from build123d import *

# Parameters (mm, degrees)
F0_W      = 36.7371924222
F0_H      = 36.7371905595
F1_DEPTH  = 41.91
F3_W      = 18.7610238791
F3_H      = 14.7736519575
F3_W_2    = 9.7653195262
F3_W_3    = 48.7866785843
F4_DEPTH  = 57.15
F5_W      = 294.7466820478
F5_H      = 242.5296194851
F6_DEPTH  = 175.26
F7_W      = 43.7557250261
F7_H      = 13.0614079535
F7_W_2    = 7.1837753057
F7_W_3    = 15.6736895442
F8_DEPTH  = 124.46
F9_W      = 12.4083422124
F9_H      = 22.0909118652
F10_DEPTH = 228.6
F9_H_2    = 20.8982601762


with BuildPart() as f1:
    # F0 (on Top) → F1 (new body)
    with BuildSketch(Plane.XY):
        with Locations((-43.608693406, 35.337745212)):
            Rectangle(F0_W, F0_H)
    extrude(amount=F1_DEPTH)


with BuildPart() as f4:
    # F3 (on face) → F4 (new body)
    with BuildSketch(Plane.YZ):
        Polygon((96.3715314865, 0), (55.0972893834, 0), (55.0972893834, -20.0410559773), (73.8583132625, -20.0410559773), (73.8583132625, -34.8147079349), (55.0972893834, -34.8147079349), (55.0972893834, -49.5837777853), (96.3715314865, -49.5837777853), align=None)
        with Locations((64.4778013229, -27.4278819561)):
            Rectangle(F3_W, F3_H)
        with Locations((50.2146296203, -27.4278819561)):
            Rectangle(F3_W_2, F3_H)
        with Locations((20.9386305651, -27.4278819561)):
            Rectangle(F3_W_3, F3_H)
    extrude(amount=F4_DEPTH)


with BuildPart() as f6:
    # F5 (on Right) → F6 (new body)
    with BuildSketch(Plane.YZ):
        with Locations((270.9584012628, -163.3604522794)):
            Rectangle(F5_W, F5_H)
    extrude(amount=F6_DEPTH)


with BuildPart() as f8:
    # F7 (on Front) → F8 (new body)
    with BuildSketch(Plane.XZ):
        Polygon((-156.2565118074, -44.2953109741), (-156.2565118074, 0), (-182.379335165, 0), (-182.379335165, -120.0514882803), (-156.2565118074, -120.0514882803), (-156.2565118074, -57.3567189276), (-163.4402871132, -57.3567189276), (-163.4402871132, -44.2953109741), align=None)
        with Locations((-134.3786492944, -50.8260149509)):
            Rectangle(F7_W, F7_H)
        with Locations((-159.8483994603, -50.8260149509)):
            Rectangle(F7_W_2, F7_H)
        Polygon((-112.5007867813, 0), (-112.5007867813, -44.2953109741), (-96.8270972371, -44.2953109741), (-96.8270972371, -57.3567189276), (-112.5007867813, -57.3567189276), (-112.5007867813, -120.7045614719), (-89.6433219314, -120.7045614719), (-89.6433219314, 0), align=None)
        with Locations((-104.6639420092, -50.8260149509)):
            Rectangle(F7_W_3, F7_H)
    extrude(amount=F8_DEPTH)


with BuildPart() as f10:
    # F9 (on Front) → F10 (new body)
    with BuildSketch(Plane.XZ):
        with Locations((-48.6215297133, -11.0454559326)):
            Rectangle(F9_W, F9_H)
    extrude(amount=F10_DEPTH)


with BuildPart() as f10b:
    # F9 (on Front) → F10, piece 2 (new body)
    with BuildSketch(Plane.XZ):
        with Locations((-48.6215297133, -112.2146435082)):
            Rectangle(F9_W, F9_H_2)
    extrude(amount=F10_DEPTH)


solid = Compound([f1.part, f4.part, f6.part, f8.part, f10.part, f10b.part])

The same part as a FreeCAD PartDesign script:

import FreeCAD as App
import Part
import Sketcher
from FreeCAD import Vector
Q = App.Units.Quantity


def add_polygon(sketch, points):
    """Adds a closed chain of lines whose ends are joined by coincident constraints."""
    first, n = sketch.GeometryCount, len(points)
    for a, b in zip(points, points[1:] + points[:1]):
        sketch.addGeometry(Part.LineSegment(App.Vector(*a, 0), App.Vector(*b, 0)), False)
    for i in range(n):
        sketch.addConstraint(Sketcher.Constraint("Coincident", first + i, 2, first + (i + 1) % n, 1))

doc = App.newDocument("Part")
params = doc.addObject("Spreadsheet::Sheet", "Params")
for row, (alias, value) in enumerate([
    ("pad1_length", "1.65 in"),
    ("pad2_length", "2.25 in"),
    ("pad3_length", "6.9 in"),
    ("pad4_length", "4.9 in"),
    ("pad5_length", "9 in"),
    ("pad6_length", "9 in"),
], start=1):
    params.set(f"A{row}", alias)
    params.set(f"B{row}", "=" + value)
    params.setAlias(f"B{row}", alias)

body = doc.addObject("PartDesign::Body", "Body")

sketch1 = body.newObject("Sketcher::SketchObject", "Sketch")
sketch1.AttachmentSupport = (doc.getObject("XY_Plane"), [""])
sketch1.MapMode = "FlatFace"
add_polygon(sketch1, [(-62, 54), (-62, 17), (-25, 17), (-25, 54)])
sketch1.addConstraint([
    Sketcher.Constraint("Vertical", 0),
    Sketcher.Constraint("Horizontal", 1),
    Sketcher.Constraint("Vertical", 2),
    Sketcher.Constraint("Horizontal", 3),
    Sketcher.Constraint("Equal", 3, 0),
    Sketcher.Constraint("DistanceY", 0, 2, 0, 1, Q("36.737191 mm")),
    Sketcher.Constraint("DistanceX", 0, 2, -1, 1, Q("61.97729 mm")),
    Sketcher.Constraint("DistanceY", -1, 1, 0, 2, Q("16.96915 mm")),
])
pad1 = body.newObject("PartDesign::Pad", "Pad")
pad1.Profile = sketch1
pad1.setExpression("Length", "Params.pad1_length")
body2 = doc.addObject("PartDesign::Body", "Body001")

sketch2 = body2.newObject("Sketcher::SketchObject", "Sketch001")
sketch2.AttachmentSupport = (doc.getObject("YZ_Plane001"), [""])
sketch2.MapMode = "FlatFace"
add_polygon(sketch2, [(96, 0), (55, 0), (55, -20), (-3, -20), (-3, -35), (55, -35), (55, -50), (96, -50)])
sketch2.addConstraint([
    Sketcher.Constraint("Horizontal", 0),
    Sketcher.Constraint("Vertical", 1),
    Sketcher.Constraint("Horizontal", 2),
    Sketcher.Constraint("Vertical", 3),
    Sketcher.Constraint("Horizontal", 4),
    Sketcher.Constraint("Vertical", 5),
    Sketcher.Constraint("Horizontal", 6),
    Sketcher.Constraint("Vertical", 7),
    Sketcher.Constraint("PointOnObject", 0, 2, -1),
    Sketcher.Constraint("Vertical", 1, 2, 4, 2),
    Sketcher.Constraint("DistanceX", 2, 2, 2, 1, Q("58.551998 mm")),
    Sketcher.Constraint("DistanceY", 3, 2, 3, 1, Q("14.773652 mm")),
    Sketcher.Constraint("DistanceY", 5, 2, 5, 1, Q("14.76907 mm")),
    Sketcher.Constraint("DistanceX", 0, 2, 0, 1, Q("41.274242 mm")),
    Sketcher.Constraint("DistanceY", 1, 2, 1, 1, Q("20.041056 mm")),
    Sketcher.Constraint("DistanceX", -1, 1, 0, 2, Q("55.097289 mm")),
])
pad2 = body2.newObject("PartDesign::Pad", "Pad001")
pad2.Profile = sketch2
pad2.setExpression("Length", "Params.pad2_length")
body3 = doc.addObject("PartDesign::Body", "Body002")

sketch3 = body3.newObject("Sketcher::SketchObject", "Sketch002")
sketch3.AttachmentSupport = (doc.getObject("YZ_Plane002"), [""])
sketch3.MapMode = "FlatFace"
add_polygon(sketch3, [(124, -42), (124, -285), (418, -285), (418, -42)])
sketch3.addConstraint([
    Sketcher.Constraint("Vertical", 0),
    Sketcher.Constraint("Horizontal", 1),
    Sketcher.Constraint("Vertical", 2),
    Sketcher.Constraint("Horizontal", 3),
    Sketcher.Constraint("DistanceX", 1, 1, 1, 2, Q("11.6042001 in")),
    Sketcher.Constraint("DistanceY", 0, 2, 0, 1, Q("242.529619 mm")),
    Sketcher.Constraint("DistanceX", -1, 1, 0, 2, Q("123.58506 mm")),
    Sketcher.Constraint("DistanceY", 0, 2, -1, 1, Q("284.625262 mm")),
])
pad3 = body3.newObject("PartDesign::Pad", "Pad002")
pad3.Profile = sketch3
pad3.setExpression("Length", "Params.pad3_length")
body4 = doc.addObject("PartDesign::Body", "Body003")

sketch4 = body4.newObject("Sketcher::SketchObject", "Sketch003")
sketch4.AttachmentSupport = (doc.getObject("XZ_Plane003"), [""])
sketch4.MapMode = "FlatFace"
add_polygon(sketch4, [(-156, -120), (-156, -57), (-113, -57), (-113, -121), (-90, -121), (-90, 0), (-113, 0), (-113, -44), (-156, -44), (-156, 0), (-182, 0), (-182, -120)])
sketch4.addConstraint([
    Sketcher.Constraint("Vertical", 0),
    Sketcher.Constraint("Horizontal", 1),
    Sketcher.Constraint("Vertical", 2),
    Sketcher.Constraint("Horizontal", 3),
    Sketcher.Constraint("Vertical", 4),
    Sketcher.Constraint("Horizontal", 5),
    Sketcher.Constraint("Vertical", 6),
    Sketcher.Constraint("Horizontal", 7),
    Sketcher.Constraint("Vertical", 8),
    Sketcher.Constraint("Horizontal", 9),
    Sketcher.Constraint("Vertical", 10),
    Sketcher.Constraint("Horizontal", 11),
    Sketcher.Constraint("PointOnObject", 4, 2, -1),
    Sketcher.Constraint("PointOnObject", 8, 2, -1),
    Sketcher.Constraint("Vertical", 2, 2, 5, 2),
    Sketcher.Constraint("Vertical", 0, 2, 7, 2),
    Sketcher.Constraint("DistanceX", 3, 1, 3, 2, Q("0.8999002 in")),
    Sketcher.Constraint("DistanceY", 0, 1, 0, 2, Q("62.694769 mm")),
    Sketcher.Constraint("DistanceY", 4, 1, 4, 2, Q("120.704561 mm")),
    Sketcher.Constraint("DistanceY", 6, 2, 6, 1, Q("44.295311 mm")),
    Sketcher.Constraint("DistanceY", 10, 2, 10, 1, Q("120.051488 mm")),
    Sketcher.Constraint("DistanceX", 1, 1, 1, 2, Q("43.755725 mm")),
    Sketcher.Constraint("DistanceX", 9, 2, 9, 1, Q("26.122823 mm")),
    Sketcher.Constraint("DistanceX", 0, 2, -1, 1, Q("156.256512 mm")),
])
pad4 = body4.newObject("PartDesign::Pad", "Pad003")
pad4.Profile = sketch4
pad4.setExpression("Length", "Params.pad4_length")
body5 = doc.addObject("PartDesign::Body", "Body004")

sketch5 = body5.newObject("Sketcher::SketchObject", "Sketch004")
sketch5.AttachmentSupport = (doc.getObject("XZ_Plane004"), [""])
sketch5.MapMode = "FlatFace"
add_polygon(sketch5, [(-55, 0), (-55, -22), (-42, -22), (-42, 0)])
sketch5.addConstraint([
    Sketcher.Constraint("Vertical", 0),
    Sketcher.Constraint("Horizontal", 1),
    Sketcher.Constraint("Vertical", 2),
    Sketcher.Constraint("Horizontal", 3),
    Sketcher.Constraint("PointOnObject", 2, 2, -1),
    Sketcher.Constraint("DistanceY", 0, 2, 0, 1, Q("22.090912 mm")),
    Sketcher.Constraint("DistanceX", 0, 2, -1, 1, Q("54.825701 mm")),
    Sketcher.Constraint("DistanceX", 1, 1, 1, 2, Q("12.408342 mm")),
])
pad5 = body5.newObject("PartDesign::Pad", "Pad004")
pad5.Profile = sketch5
pad5.setExpression("Length", "Params.pad5_length")
body6 = doc.addObject("PartDesign::Body", "Body005")

sketch6 = body6.newObject("Sketcher::SketchObject", "Sketch005")
sketch6.AttachmentSupport = (doc.getObject("XZ_Plane005"), [""])
sketch6.MapMode = "FlatFace"
add_polygon(sketch6, [(-55, -102), (-55, -123), (-42, -123), (-42, -102)])
sketch6.addConstraint([
    Sketcher.Constraint("Vertical", 0),
    Sketcher.Constraint("Horizontal", 1),
    Sketcher.Constraint("Vertical", 2),
    Sketcher.Constraint("Horizontal", 3),
    Sketcher.Constraint("DistanceY", 0, 2, 0, 1, Q("20.89826 mm")),
    Sketcher.Constraint("DistanceX", 0, 2, -1, 1, Q("54.825701 mm")),
    Sketcher.Constraint("DistanceX", 1, 1, 1, 2, Q("12.408342 mm")),
    Sketcher.Constraint("DistanceY", 0, 2, -1, 1, Q("122.663774 mm")),
])
pad6 = body6.newObject("PartDesign::Pad", "Pad005")
pad6.Profile = sketch6
pad6.setExpression("Length", "Params.pad6_length")

doc.recompute()
